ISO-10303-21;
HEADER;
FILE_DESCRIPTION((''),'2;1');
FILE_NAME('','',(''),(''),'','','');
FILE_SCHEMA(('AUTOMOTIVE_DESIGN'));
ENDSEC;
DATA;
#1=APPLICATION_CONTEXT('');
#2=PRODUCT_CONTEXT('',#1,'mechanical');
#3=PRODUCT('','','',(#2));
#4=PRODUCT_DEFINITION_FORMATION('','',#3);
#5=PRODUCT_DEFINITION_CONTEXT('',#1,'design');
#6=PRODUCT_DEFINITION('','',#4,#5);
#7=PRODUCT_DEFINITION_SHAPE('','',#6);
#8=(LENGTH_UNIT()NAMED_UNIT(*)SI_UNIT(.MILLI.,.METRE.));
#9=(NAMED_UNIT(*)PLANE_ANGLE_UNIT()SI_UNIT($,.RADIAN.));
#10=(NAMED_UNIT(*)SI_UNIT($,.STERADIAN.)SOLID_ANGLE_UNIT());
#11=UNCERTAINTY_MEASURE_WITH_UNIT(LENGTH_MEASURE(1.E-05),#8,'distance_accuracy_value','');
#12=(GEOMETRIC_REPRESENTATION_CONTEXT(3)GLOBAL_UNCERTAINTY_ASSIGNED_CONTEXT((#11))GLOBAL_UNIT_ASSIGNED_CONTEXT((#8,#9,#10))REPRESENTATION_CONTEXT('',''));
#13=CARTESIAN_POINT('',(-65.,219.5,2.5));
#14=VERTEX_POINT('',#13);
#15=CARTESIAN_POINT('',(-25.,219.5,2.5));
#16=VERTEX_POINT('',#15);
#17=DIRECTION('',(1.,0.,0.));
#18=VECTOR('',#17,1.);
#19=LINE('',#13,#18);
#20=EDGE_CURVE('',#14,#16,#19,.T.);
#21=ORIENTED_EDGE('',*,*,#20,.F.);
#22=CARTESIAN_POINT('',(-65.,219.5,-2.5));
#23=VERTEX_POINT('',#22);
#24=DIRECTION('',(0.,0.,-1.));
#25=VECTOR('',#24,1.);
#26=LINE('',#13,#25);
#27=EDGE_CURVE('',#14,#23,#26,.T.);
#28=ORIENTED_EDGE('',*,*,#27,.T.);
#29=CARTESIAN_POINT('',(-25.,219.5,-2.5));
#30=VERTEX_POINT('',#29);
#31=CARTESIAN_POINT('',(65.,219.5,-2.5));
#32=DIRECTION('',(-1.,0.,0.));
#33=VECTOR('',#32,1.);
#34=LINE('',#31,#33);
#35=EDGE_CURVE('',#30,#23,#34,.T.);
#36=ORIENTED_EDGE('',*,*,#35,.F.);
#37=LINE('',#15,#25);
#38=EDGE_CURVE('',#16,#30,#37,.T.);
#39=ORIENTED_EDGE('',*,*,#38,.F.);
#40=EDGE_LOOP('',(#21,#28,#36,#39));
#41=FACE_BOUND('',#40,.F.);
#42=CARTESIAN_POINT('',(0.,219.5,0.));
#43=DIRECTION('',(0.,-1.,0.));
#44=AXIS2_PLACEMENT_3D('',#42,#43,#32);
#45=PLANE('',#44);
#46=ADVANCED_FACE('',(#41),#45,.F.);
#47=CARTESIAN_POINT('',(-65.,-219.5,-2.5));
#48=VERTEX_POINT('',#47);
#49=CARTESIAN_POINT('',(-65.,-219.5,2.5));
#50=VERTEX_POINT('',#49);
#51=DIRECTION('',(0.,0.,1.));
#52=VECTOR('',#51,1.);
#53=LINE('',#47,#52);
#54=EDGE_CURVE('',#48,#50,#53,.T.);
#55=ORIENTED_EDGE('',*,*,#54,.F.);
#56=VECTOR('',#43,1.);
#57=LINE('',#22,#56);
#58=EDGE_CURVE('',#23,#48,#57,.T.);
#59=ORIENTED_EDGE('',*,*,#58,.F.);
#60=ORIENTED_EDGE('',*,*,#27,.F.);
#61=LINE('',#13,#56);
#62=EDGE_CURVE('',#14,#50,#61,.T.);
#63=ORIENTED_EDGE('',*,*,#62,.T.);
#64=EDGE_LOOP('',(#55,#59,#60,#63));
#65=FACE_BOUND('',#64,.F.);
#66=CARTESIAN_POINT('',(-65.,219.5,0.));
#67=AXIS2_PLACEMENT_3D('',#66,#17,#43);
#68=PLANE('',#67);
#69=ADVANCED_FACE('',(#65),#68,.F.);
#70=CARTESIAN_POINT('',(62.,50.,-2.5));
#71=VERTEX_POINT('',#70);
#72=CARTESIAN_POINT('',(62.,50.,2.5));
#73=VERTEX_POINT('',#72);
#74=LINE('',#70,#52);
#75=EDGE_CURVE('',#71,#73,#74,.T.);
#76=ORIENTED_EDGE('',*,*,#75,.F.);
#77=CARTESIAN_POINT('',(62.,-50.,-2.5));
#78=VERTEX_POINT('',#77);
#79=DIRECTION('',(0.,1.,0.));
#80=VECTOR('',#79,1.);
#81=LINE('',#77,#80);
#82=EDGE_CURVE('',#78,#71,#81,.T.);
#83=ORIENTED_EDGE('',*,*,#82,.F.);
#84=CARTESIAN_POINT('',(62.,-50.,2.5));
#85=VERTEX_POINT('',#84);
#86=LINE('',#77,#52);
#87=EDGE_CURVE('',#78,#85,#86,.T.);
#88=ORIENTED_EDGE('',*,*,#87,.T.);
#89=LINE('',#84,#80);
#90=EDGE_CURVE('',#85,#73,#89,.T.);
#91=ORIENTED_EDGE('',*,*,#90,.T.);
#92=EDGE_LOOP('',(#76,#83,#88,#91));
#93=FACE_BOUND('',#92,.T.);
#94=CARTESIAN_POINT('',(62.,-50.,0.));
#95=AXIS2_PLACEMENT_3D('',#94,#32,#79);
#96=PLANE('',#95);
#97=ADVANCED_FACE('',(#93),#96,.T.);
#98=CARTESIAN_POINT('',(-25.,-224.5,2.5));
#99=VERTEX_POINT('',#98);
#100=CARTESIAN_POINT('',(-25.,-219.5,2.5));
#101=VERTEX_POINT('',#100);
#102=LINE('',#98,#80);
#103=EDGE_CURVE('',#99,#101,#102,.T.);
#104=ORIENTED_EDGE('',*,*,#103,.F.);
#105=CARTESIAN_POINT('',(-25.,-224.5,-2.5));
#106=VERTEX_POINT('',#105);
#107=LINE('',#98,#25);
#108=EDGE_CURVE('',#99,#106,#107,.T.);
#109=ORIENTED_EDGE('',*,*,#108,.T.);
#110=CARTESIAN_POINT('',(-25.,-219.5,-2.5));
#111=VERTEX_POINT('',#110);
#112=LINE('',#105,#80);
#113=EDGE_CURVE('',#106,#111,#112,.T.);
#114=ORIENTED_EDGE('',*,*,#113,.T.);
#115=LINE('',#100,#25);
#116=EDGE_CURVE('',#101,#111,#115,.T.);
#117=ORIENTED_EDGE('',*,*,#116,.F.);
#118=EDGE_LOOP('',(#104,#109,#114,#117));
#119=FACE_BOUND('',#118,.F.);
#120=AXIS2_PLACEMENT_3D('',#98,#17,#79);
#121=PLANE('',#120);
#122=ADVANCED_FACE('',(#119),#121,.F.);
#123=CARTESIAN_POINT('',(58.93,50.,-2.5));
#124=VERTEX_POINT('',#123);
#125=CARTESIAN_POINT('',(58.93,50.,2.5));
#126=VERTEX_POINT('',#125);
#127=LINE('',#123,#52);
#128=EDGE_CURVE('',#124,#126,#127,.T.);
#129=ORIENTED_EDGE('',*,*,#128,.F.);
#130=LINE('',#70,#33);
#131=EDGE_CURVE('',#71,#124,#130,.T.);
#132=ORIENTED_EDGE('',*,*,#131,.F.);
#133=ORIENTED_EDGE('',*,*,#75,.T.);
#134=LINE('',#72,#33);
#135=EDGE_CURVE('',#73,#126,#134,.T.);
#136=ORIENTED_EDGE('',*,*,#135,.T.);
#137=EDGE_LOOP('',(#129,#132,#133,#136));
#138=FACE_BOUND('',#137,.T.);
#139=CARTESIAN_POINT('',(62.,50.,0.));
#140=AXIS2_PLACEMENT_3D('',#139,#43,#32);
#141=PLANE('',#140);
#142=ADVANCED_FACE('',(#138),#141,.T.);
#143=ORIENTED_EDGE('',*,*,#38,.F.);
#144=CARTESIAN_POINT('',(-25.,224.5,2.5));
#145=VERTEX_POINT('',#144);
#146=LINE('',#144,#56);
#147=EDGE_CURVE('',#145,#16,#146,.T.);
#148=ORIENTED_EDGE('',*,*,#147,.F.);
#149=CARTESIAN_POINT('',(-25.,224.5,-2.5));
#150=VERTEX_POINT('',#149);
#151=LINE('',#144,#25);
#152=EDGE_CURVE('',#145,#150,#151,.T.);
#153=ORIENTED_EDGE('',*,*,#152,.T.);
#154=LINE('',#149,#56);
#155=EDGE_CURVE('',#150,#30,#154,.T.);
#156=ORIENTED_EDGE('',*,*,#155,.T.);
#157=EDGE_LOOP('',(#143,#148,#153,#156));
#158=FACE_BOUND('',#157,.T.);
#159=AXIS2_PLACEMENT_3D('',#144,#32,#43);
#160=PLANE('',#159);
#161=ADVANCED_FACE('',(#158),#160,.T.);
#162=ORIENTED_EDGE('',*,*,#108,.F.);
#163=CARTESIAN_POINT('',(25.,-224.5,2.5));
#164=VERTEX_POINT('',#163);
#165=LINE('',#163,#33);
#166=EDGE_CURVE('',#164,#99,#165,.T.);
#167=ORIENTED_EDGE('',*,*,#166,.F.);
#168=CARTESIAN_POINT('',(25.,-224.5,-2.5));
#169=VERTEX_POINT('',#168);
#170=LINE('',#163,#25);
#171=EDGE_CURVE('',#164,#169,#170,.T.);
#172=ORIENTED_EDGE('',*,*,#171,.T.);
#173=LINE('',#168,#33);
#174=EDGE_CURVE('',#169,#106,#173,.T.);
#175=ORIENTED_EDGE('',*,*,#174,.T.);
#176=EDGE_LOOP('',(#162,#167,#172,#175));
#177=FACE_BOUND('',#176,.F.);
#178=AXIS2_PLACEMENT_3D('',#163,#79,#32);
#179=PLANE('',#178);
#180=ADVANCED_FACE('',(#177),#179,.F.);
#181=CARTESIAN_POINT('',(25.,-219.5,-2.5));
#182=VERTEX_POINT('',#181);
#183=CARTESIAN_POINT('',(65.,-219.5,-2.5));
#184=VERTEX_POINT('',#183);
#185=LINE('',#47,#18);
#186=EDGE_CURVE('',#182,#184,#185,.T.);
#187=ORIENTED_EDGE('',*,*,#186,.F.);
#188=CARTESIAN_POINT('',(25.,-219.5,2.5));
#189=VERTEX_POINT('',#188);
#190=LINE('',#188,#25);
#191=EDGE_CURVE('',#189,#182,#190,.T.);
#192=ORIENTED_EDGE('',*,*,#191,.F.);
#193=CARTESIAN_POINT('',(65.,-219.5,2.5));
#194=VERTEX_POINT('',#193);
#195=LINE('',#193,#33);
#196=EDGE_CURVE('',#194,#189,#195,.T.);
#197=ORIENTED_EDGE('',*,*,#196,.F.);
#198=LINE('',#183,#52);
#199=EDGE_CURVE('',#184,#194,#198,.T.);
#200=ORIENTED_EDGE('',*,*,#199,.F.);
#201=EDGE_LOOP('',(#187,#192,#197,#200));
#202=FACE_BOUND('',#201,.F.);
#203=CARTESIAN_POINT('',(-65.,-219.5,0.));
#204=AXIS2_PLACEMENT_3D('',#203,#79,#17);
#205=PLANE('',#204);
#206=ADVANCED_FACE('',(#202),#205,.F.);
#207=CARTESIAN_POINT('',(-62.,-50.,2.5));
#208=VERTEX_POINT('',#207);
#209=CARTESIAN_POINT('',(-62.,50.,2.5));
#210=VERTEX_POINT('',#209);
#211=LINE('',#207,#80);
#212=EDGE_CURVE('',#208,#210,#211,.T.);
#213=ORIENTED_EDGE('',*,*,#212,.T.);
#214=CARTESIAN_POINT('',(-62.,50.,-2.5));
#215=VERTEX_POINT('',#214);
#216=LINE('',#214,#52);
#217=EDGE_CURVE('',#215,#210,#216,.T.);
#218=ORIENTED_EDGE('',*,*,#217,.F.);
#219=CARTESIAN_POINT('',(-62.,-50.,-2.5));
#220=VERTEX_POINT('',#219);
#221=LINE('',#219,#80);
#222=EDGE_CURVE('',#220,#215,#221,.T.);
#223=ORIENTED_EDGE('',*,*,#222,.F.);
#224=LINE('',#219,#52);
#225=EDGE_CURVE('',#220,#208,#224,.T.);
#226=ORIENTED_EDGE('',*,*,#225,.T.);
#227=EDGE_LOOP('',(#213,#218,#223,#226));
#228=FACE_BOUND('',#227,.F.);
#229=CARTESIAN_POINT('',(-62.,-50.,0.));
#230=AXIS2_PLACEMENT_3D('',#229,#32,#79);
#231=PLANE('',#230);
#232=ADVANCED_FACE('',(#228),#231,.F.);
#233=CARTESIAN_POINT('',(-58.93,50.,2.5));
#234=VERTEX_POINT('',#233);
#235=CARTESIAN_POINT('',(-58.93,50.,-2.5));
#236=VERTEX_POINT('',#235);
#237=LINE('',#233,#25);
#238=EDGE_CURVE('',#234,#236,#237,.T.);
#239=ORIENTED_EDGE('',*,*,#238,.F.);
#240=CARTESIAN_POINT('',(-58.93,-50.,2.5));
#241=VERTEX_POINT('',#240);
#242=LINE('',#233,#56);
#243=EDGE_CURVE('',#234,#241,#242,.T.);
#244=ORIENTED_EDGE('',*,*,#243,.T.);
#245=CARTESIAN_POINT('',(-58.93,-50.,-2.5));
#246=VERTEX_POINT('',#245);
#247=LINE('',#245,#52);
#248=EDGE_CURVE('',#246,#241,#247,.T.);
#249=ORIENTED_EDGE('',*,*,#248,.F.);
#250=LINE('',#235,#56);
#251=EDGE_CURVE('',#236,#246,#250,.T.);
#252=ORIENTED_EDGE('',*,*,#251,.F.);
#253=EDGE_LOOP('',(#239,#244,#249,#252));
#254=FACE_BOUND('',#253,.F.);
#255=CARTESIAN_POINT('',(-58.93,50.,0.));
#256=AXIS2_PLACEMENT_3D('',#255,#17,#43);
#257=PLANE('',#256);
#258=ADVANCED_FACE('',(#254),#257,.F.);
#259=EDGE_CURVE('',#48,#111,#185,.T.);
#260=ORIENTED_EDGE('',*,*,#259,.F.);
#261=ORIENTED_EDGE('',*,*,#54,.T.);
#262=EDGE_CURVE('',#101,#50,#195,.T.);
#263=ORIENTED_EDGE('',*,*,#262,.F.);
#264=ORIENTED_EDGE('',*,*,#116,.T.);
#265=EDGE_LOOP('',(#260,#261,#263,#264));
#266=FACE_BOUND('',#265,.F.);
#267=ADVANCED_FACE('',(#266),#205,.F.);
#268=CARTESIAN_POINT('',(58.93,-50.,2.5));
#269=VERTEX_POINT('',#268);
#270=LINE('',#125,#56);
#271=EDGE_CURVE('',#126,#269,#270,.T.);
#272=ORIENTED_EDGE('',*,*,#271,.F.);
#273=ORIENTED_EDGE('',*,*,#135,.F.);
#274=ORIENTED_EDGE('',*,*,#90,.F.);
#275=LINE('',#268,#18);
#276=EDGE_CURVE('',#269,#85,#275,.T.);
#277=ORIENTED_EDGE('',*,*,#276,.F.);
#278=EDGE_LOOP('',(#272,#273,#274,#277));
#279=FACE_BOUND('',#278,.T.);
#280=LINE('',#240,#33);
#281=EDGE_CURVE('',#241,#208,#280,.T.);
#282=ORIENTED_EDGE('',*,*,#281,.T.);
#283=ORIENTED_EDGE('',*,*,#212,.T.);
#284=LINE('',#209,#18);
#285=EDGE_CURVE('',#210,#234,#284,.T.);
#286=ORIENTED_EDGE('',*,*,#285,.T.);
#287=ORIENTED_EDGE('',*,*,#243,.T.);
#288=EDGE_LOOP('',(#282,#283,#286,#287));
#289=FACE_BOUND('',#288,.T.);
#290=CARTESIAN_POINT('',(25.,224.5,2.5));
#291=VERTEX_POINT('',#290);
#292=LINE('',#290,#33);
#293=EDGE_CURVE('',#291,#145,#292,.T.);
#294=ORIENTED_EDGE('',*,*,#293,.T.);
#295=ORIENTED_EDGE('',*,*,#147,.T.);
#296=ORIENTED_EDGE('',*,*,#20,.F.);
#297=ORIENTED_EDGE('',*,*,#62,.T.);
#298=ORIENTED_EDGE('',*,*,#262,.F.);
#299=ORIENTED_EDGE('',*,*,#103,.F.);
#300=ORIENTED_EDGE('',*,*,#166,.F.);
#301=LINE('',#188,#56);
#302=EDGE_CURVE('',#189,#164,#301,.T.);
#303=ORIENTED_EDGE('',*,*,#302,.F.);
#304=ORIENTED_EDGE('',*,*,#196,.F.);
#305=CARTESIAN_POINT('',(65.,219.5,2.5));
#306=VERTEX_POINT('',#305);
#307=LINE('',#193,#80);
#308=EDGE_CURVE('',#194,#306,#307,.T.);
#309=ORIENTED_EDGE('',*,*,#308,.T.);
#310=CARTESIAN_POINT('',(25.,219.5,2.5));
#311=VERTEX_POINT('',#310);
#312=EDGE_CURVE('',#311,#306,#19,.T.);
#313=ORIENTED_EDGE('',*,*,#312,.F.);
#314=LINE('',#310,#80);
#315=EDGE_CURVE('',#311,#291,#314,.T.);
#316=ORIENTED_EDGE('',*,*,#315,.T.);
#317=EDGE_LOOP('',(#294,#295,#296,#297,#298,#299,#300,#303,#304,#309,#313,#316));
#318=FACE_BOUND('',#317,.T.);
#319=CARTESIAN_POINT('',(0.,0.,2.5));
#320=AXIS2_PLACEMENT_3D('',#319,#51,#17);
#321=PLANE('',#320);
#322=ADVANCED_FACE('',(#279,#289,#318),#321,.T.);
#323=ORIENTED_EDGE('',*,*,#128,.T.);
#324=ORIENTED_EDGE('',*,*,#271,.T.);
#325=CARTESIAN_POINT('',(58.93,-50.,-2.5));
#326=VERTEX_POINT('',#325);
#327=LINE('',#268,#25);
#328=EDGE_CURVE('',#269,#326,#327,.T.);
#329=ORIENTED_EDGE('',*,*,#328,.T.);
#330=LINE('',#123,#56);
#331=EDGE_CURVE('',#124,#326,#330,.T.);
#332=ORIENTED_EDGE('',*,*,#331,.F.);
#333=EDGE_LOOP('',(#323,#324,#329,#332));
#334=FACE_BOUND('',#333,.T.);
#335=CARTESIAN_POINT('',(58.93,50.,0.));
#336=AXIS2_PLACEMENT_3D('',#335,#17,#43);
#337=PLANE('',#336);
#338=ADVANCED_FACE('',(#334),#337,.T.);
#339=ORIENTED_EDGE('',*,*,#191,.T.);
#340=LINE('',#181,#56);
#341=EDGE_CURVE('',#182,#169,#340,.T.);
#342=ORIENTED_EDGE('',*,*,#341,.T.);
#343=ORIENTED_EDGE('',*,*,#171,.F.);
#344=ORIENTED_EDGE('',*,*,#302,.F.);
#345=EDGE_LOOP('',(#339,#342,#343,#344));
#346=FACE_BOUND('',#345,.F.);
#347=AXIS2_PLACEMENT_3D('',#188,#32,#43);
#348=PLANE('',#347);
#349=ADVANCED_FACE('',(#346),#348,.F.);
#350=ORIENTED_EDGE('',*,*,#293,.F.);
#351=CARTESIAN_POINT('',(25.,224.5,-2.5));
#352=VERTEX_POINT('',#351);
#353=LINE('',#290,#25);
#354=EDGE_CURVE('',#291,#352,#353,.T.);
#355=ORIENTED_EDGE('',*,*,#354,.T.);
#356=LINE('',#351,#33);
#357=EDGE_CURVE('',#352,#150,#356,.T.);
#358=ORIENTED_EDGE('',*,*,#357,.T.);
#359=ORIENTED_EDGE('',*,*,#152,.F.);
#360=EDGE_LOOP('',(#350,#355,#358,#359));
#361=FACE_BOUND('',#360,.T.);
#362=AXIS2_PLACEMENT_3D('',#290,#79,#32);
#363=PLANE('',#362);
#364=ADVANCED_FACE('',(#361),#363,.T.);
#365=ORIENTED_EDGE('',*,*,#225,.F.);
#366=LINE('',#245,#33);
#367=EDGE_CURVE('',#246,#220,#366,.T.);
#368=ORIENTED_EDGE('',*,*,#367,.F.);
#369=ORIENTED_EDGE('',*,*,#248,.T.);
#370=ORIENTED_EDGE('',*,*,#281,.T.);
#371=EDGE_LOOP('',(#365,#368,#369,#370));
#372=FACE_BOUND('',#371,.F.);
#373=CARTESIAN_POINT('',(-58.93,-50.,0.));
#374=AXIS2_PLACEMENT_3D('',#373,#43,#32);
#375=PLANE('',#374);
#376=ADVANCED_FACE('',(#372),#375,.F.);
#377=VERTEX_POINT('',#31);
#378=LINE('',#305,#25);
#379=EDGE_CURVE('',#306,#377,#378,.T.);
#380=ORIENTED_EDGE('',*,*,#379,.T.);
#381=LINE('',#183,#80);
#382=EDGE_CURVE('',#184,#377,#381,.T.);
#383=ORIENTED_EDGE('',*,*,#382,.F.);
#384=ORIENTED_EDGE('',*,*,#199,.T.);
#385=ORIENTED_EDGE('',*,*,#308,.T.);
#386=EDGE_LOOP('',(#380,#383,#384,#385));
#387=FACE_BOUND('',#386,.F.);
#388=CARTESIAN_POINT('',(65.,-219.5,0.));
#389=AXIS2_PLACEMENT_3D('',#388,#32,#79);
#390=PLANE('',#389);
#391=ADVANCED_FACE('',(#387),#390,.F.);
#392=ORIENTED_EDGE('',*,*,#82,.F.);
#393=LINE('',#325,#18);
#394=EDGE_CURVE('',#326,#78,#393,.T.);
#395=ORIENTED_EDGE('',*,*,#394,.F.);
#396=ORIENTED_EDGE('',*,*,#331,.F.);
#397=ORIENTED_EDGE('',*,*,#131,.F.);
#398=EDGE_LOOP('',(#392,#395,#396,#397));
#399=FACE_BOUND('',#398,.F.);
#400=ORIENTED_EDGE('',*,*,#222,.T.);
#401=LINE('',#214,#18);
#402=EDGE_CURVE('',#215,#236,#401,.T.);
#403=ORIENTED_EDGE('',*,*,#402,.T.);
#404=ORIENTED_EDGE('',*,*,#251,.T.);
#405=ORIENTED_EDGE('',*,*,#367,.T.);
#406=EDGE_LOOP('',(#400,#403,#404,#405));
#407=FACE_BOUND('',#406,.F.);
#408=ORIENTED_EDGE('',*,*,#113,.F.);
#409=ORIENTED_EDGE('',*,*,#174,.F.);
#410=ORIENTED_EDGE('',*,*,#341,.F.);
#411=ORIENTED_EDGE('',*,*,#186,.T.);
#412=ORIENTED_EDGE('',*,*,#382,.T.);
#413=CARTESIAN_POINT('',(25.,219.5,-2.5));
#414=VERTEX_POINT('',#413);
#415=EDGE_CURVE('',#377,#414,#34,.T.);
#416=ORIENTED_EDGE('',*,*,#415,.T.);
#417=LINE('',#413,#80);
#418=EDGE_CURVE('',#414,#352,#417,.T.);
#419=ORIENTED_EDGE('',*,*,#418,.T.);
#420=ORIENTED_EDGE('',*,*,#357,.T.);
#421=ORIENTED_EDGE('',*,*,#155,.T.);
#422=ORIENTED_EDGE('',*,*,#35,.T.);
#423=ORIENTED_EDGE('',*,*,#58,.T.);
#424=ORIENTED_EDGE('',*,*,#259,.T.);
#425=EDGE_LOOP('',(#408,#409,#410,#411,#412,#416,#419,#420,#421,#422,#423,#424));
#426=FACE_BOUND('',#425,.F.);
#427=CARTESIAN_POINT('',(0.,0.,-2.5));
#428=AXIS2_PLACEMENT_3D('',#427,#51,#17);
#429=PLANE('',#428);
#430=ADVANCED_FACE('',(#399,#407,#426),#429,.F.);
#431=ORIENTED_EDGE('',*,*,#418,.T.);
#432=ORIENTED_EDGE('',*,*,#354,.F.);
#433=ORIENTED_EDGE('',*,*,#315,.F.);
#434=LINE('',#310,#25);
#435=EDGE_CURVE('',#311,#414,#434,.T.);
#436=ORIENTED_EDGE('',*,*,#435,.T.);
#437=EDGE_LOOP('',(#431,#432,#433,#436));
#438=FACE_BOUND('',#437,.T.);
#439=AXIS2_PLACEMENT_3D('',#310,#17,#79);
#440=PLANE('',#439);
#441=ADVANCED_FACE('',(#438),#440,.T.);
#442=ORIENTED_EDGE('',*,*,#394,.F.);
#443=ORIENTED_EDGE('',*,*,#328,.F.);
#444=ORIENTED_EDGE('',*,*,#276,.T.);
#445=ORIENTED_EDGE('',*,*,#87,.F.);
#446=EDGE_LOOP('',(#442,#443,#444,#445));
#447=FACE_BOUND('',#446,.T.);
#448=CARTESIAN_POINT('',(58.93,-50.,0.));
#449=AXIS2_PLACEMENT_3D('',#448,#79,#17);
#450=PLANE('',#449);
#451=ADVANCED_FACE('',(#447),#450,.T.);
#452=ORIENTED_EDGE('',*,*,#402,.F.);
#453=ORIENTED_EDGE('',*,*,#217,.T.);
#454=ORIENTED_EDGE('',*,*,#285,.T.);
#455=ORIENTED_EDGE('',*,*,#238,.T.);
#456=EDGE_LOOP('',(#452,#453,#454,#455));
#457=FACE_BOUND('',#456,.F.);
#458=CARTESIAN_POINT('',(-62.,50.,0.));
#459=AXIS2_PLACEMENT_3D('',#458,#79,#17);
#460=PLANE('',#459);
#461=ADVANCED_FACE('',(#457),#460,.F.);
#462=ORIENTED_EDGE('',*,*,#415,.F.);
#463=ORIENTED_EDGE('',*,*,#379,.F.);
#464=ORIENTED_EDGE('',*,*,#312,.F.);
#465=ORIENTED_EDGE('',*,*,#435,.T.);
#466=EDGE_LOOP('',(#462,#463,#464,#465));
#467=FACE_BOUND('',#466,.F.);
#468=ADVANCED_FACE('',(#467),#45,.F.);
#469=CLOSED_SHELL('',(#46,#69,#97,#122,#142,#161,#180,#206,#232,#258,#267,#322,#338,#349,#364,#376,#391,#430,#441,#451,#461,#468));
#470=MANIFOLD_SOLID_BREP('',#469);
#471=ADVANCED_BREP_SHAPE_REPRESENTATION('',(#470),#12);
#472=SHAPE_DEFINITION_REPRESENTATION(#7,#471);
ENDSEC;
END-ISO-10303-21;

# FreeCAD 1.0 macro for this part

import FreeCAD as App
import Part
import Sketcher


def add_polygon(sketch, points):
    """Adds a closed chain of lines whose ends are joined by coincident constraints."""
    first, n = sketch.GeometryCount, len(points)
    for a, b in zip(points, points[1:] + points[:1]):
        sketch.addGeometry(Part.LineSegment(App.Vector(*a, 0), App.Vector(*b, 0)), False)
    for i in range(n):
        sketch.addConstraint(Sketcher.Constraint("Coincident", first + i, 2, first + (i + 1) % n, 1))

doc = App.newDocument("Part")
params = doc.addObject("Spreadsheet::Sheet", "Params")
for row, (alias, value) in enumerate([
    ("sketch1_width", "130 mm"),
    ("sketch1_height", "439 mm"),
    ("sketch1_height2", "100 mm"),
    ("sketch1_width2", "3.07 mm"),
    ("pad1_length", "5 mm"),
    ("sketch2_width", "50 mm"),
    ("sketch2_height", "5 mm"),
    ("pad2_length", "5 mm"),
], start=1):
    params.set(f"A{row}", alias)
    params.set(f"B{row}", "=" + value)
    params.setAlias(f"B{row}", alias)

body = doc.addObject("PartDesign::Body", "Body")

# Sketch on XY plane
sketch1 = doc.addObject("Sketcher::SketchObject", "Sketch")
body.addObject(sketch1)
sketch1.AttachmentSupport = (doc.XY_Plane, [""])
sketch1.MapMode = "FlatFace"
add_polygon(sketch1, [(-65, 219.5), (-65, -219.5), (65, -219.5), (65, 219.5)])  # lines 0-3
add_polygon(sketch1, [(-58.9, 50), (-58.9, -50), (-62, -50), (-62, 50)])  # lines 4-7
add_polygon(sketch1, [(58.9, -50), (58.9, 50), (62, 50), (62, -50)])  # lines 8-11
sketch1.addConstraint(Sketcher.Constraint("Vertical", 0))
sketch1.addConstraint(Sketcher.Constraint("Horizontal", 1))
sketch1.addConstraint(Sketcher.Constraint("Vertical", 2))
sketch1.addConstraint(Sketcher.Constraint("Horizontal", 3))
sketch1.addConstraint(Sketcher.Constraint("Vertical", 4))
sketch1.addConstraint(Sketcher.Constraint("Horizontal", 5))
sketch1.addConstraint(Sketcher.Constraint("Vertical", 6))
sketch1.addConstraint(Sketcher.Constraint("Horizontal", 7))
sketch1.addConstraint(Sketcher.Constraint("Vertical", 8))
sketch1.addConstraint(Sketcher.Constraint("Horizontal", 9))
sketch1.addConstraint(Sketcher.Constraint("Vertical", 10))
sketch1.addConstraint(Sketcher.Constraint("Horizontal", 11))
sketch1.addConstraint(Sketcher.Constraint("Symmetric", 0, 2, 2, 2, -1, 1))
sketch1.addConstraint(Sketcher.Constraint("Symmetric", 4, 2, 8, 2, -1, 1))
sketch1.addConstraint(Sketcher.Constraint("Symmetric", 6, 2, 10, 2, -1, 1))
sketch1.addConstraint(Sketcher.Constraint("Horizontal", 7, 2, 8, 2))
sketch1.addConstraint(Sketcher.Constraint("DistanceX", 1, 1, 1, 2, 130.0))
sketch1.addConstraint(Sketcher.Constraint("DistanceY", 0, 2, 0, 1, 439.0))
sketch1.addConstraint(Sketcher.Constraint("DistanceY", 4, 2, 4, 1, 100.0))
sketch1.addConstraint(Sketcher.Constraint("DistanceX", 0, 2, 5, 2, 3.0))
sketch1.addConstraint(Sketcher.Constraint("DistanceX", 5, 2, 5, 1, 3.07))
sketch1.setExpression("Constraints[28]", "Params.sketch1_width")
sketch1.setExpression("Constraints[29]", "Params.sketch1_height")
sketch1.setExpression("Constraints[30]", "Params.sketch1_height2")
sketch1.setExpression("Constraints[32]", "Params.sketch1_width2")
pad1 = doc.addObject("PartDesign::Pad", "Pad")
body.addObject(pad1)
pad1.Profile = sketch1
pad1.setExpression("Length", "Params.pad1_length")
pad1.Midplane = True

# Sketch on XY plane
sketch2 = doc.addObject("Sketcher::SketchObject", "Sketch001")
body.addObject(sketch2)
sketch2.AttachmentSupport = (doc.XY_Plane, [""])
sketch2.MapMode = "FlatFace"
sketch2.AttachmentOffset = App.Placement(App.Vector(0, 0, 2.5), App.Rotation())
add_polygon(sketch2, [(-25, 224), (-25, 220), (25, 220), (25, 224)])  # lines 0-3
add_polygon(sketch2, [(25, -220), (-25, -220), (-25, -224), (25, -224)])  # lines 4-7
sketch2.addConstraint(Sketcher.Constraint("Vertical", 0))
sketch2.addConstraint(Sketcher.Constraint("Horizontal", 1))
sketch2.addConstraint(Sketcher.Constraint("Vertical", 2))
sketch2.addConstraint(Sketcher.Constraint("Horizontal", 3))
sketch2.addConstraint(Sketcher.Constraint("Horizontal", 4))
sketch2.addConstraint(Sketcher.Constraint("Vertical", 5))
sketch2.addConstraint(Sketcher.Constraint("Horizontal", 6))
sketch2.addConstraint(Sketcher.Constraint("Vertical", 7))
sketch2.addConstraint(Sketcher.Constraint("Symmetric", 1, 2, 4, 2, -1, 1))
sketch2.addConstraint(Sketcher.Constraint("Symmetric", 3, 2, 6, 2, -1, 1))
sketch2.addConstraint(Sketcher.Constraint("Vertical", 3, 2, 4, 2))
sketch2.addConstraint(Sketcher.Constraint("DistanceX", 1, 1, 1, 2, 50.0))
sketch2.addConstraint(Sketcher.Constraint("DistanceY", 0, 2, 0, 1, 5.0))
sketch2.addConstraint(Sketcher.Constraint("DistanceY", 4, 2, 0, 2, 439.0))
sketch2.setExpression("Constraints[19]", "Params.sketch2_width")
sketch2.setExpression("Constraints[20]", "Params.sketch2_height")
pad2 = doc.addObject("PartDesign::Pad", "Pad001")
body.addObject(pad2)
pad2.Profile = sketch2
pad2.setExpression("Length", "Params.pad2_length")
pad2.Reversed = True

doc.recompute()
